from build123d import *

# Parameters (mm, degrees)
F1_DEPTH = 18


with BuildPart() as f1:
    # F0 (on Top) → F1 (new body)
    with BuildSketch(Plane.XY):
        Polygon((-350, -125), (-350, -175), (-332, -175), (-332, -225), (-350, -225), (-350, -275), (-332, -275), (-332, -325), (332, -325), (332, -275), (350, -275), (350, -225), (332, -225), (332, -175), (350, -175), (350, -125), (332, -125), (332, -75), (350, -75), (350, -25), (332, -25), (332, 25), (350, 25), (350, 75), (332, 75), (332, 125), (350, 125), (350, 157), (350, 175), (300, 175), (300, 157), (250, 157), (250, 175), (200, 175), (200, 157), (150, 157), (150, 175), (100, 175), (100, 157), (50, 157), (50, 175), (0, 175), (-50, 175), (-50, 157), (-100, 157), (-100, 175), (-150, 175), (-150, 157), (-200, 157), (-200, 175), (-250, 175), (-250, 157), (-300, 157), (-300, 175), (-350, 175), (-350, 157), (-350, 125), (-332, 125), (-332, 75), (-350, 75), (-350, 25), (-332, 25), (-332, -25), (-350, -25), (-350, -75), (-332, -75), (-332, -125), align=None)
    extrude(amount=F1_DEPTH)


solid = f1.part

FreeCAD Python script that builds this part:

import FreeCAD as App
import Part
import Sketcher
from FreeCAD import Vector
Q = App.Units.Quantity

doc = App.newDocument("Part")
params = doc.addObject("Spreadsheet::Sheet", "Params")
for row, (alias, value) in enumerate([
    ("sketch1_width", "18 mm"),
    ("sketch1_width2", "664 mm"),
    ("sketch1_width3", "50 mm"),
    ("pad1_length", "18 mm"),
], start=1):
    params.set(f"A{row}", alias)
    params.set(f"B{row}", "=" + value)
    params.setAlias(f"B{row}", alias)

body = doc.addObject("PartDesign::Body", "Body")

# Sketch on XY plane
sketch1 = body.newObject("Sketcher::SketchObject", "Sketch")
sketch1.AttachmentSupport = (doc.getObject("XY_Plane"), [""])
sketch1.MapMode = "FlatFace"
sketch1.addGeometry([
    Part.LineSegment(Vector(-350, -125, 0), Vector(-350, -175, 0)),  # 0
    Part.LineSegment(Vector(-350, -175, 0), Vector(-332, -175, 0)),  # 1
    Part.LineSegment(Vector(-332, -175, 0), Vector(-332, -225, 0)),  # 2
    Part.LineSegment(Vector(-332, -225, 0), Vector(-350, -225, 0)),  # 3
    Part.LineSegment(Vector(-350, -225, 0), Vector(-350, -275, 0)),  # 4
    Part.LineSegment(Vector(-350, -275, 0), Vector(-332, -275, 0)),  # 5
    Part.LineSegment(Vector(-332, -275, 0), Vector(-332, -325, 0)),  # 6
    Part.LineSegment(Vector(-332, -325, 0), Vector(332, -325, 0)),  # 7
    Part.LineSegment(Vector(332, -325, 0), Vector(332, -275, 0)),  # 8
    Part.LineSegment(Vector(332, -275, 0), Vector(350, -275, 0)),  # 9
    Part.LineSegment(Vector(350, -275, 0), Vector(350, -225, 0)),  # 10
    Part.LineSegment(Vector(350, -225, 0), Vector(332, -225, 0)),  # 11
    Part.LineSegment(Vector(332, -225, 0), Vector(332, -175, 0)),  # 12
    Part.LineSegment(Vector(332, -175, 0), Vector(350, -175, 0)),  # 13
    Part.LineSegment(Vector(350, -175, 0), Vector(350, -125, 0)),  # 14
    Part.LineSegment(Vector(350, -125, 0), Vector(332, -125, 0)),  # 15
    Part.LineSegment(Vector(332, -125, 0), Vector(332, -75, 0)),  # 16
    Part.LineSegment(Vector(332, -75, 0), Vector(350, -75, 0)),  # 17
    Part.LineSegment(Vector(350, -75, 0), Vector(350, -25, 0)),  # 18
    Part.LineSegment(Vector(350, -25, 0), Vector(332, -25, 0)),  # 19
    Part.LineSegment(Vector(332, -25, 0), Vector(332, 25, 0)),  # 20
    Part.LineSegment(Vector(332, 25, 0), Vector(350, 25, 0)),  # 21
    Part.LineSegment(Vector(350, 25, 0), Vector(350, 75, 0)),  # 22
    Part.LineSegment(Vector(350, 75, 0), Vector(332, 75, 0)),  # 23
    Part.LineSegment(Vector(332, 75, 0), Vector(332, 125, 0)),  # 24
    Part.LineSegment(Vector(332, 125, 0), Vector(350, 125, 0)),  # 25
    Part.LineSegment(Vector(350, 125, 0), Vector(350, 175, 0)),  # 26
    Part.LineSegment(Vector(350, 175, 0), Vector(300, 175, 0)),  # 27
    Part.LineSegment(Vector(300, 175, 0), Vector(300, 157, 0)),  # 28
    Part.LineSegment(Vector(300, 157, 0), Vector(250, 157, 0)),  # 29
    Part.LineSegment(Vector(250, 157, 0), Vector(250, 175, 0)),  # 30
    Part.LineSegment(Vector(250, 175, 0), Vector(200, 175, 0)),  # 31
    Part.LineSegment(Vector(200, 175, 0), Vector(200, 157, 0)),  # 32
    Part.LineSegment(Vector(200, 157, 0), Vector(150, 157, 0)),  # 33
    Part.LineSegment(Vector(150, 157, 0), Vector(150, 175, 0)),  # 34
    Part.LineSegment(Vector(150, 175, 0), Vector(100, 175, 0)),  # 35
    Part.LineSegment(Vector(100, 175, 0), Vector(100, 157, 0)),  # 36
    Part.LineSegment(Vector(100, 157, 0), Vector(50, 157, 0)),  # 37
    Part.LineSegment(Vector(50, 157, 0), Vector(50, 175, 0)),  # 38
    Part.LineSegment(Vector(50, 175, 0), Vector(-50, 175, 0)),  # 39
    Part.LineSegment(Vector(-50, 175, 0), Vector(-50, 157, 0)),  # 40
    Part.LineSegment(Vector(-50, 157, 0), Vector(-100, 157, 0)),  # 41
    Part.LineSegment(Vector(-100, 157, 0), Vector(-100, 175, 0)),  # 42
    Part.LineSegment(Vector(-100, 175, 0), Vector(-150, 175, 0)),  # 43
    Part.LineSegment(Vector(-150, 175, 0), Vector(-150, 157, 0)),  # 44
    Part.LineSegment(Vector(-150, 157, 0), Vector(-200, 157, 0)),  # 45
    Part.LineSegment(Vector(-200, 157, 0), Vector(-200, 175, 0)),  # 46
    Part.LineSegment(Vector(-200, 175, 0), Vector(-250, 175, 0)),  # 47
    Part.LineSegment(Vector(-250, 175, 0), Vector(-250, 157, 0)),  # 48
    Part.LineSegment(Vector(-250, 157, 0), Vector(-300, 157, 0)),  # 49
    Part.LineSegment(Vector(-300, 157, 0), Vector(-300, 175, 0)),  # 50
    Part.LineSegment(Vector(-300, 175, 0), Vector(-350, 175, 0)),  # 51
    Part.LineSegment(Vector(-350, 175, 0), Vector(-350, 125, 0)),  # 52
    Part.LineSegment(Vector(-350, 125, 0), Vector(-332, 125, 0)),  # 53
    Part.LineSegment(Vector(-332, 125, 0), Vector(-332, 75, 0)),  # 54
    Part.LineSegment(Vector(-332, 75, 0), Vector(-350, 75, 0)),  # 55
    Part.LineSegment(Vector(-350, 75, 0), Vector(-350, 25, 0)),  # 56
    Part.LineSegment(Vector(-350, 25, 0), Vector(-332, 25, 0)),  # 57
    Part.LineSegment(Vector(-332, 25, 0), Vector(-332, -25, 0)),  # 58
    Part.LineSegment(Vector(-332, -25, 0), Vector(-350, -25, 0)),  # 59
    Part.LineSegment(Vector(-350, -25, 0), Vector(-350, -75, 0)),  # 60
    Part.LineSegment(Vector(-350, -75, 0), Vector(-332, -75, 0)),  # 61
    Part.LineSegment(Vector(-332, -75, 0), Vector(-332, -125, 0)),  # 62
    Part.LineSegment(Vector(-332, -125, 0), Vector(-350, -125, 0)),  # 63
], False)
sketch1.addConstraint([
    Sketcher.Constraint("Coincident", 0, 2, 1, 1),
    Sketcher.Constraint("Coincident", 1, 2, 2, 1),
    Sketcher.Constraint("Coincident", 2, 2, 3, 1),
    Sketcher.Constraint("Coincident", 3, 2, 4, 1),
    Sketcher.Constraint("Coincident", 4, 2, 5, 1),
    Sketcher.Constraint("Coincident", 5, 2, 6, 1),
    Sketcher.Constraint("Coincident", 6, 2, 7, 1),
    Sketcher.Constraint("Coincident", 7, 2, 8, 1),
    Sketcher.Constraint("Coincident", 8, 2, 9, 1),
    Sketcher.Constraint("Coincident", 9, 2, 10, 1),
    Sketcher.Constraint("Coincident", 10, 2, 11, 1),
    Sketcher.Constraint("Coincident", 11, 2, 12, 1),
    Sketcher.Constraint("Coincident", 12, 2, 13, 1),
    Sketcher.Constraint("Coincident", 13, 2, 14, 1),
    Sketcher.Constraint("Coincident", 14, 2, 15, 1),
    Sketcher.Constraint("Coincident", 15, 2, 16, 1),
    Sketcher.Constraint("Coincident", 16, 2, 17, 1),
    Sketcher.Constraint("Coincident", 17, 2, 18, 1),
    Sketcher.Constraint("Coincident", 18, 2, 19, 1),
    Sketcher.Constraint("Coincident", 19, 2, 20, 1),
    Sketcher.Constraint("Coincident", 20, 2, 21, 1),
    Sketcher.Constraint("Coincident", 21, 2, 22, 1),
    Sketcher.Constraint("Coincident", 22, 2, 23, 1),
    Sketcher.Constraint("Coincident", 23, 2, 24, 1),
    Sketcher.Constraint("Coincident", 24, 2, 25, 1),
    Sketcher.Constraint("Coincident", 25, 2, 26, 1),
    Sketcher.Constraint("Coincident", 26, 2, 27, 1),
    Sketcher.Constraint("Coincident", 27, 2, 28, 1),
    Sketcher.Constraint("Coincident", 28, 2, 29, 1),
    Sketcher.Constraint("Coincident", 29, 2, 30, 1),
    Sketcher.Constraint("Coincident", 30, 2, 31, 1),
    Sketcher.Constraint("Coincident", 31, 2, 32, 1),
    Sketcher.Constraint("Coincident", 32, 2, 33, 1),
    Sketcher.Constraint("Coincident", 33, 2, 34, 1),
    Sketcher.Constraint("Coincident", 34, 2, 35, 1),
    Sketcher.Constraint("Coincident", 35, 2, 36, 1),
    Sketcher.Constraint("Coincident", 36, 2, 37, 1),
    Sketcher.Constraint("Coincident", 37, 2, 38, 1),
    Sketcher.Constraint("Coincident", 38, 2, 39, 1),
    Sketcher.Constraint("Coincident", 39, 2, 40, 1),
    Sketcher.Constraint("Coincident", 40, 2, 41, 1),
    Sketcher.Constraint("Coincident", 41, 2, 42, 1),
    Sketcher.Constraint("Coincident", 42, 2, 43, 1),
    Sketcher.Constraint("Coincident", 43, 2, 44, 1),
    Sketcher.Constraint("Coincident", 44, 2, 45, 1),
    Sketcher.Constraint("Coincident", 45, 2, 46, 1),
    Sketcher.Constraint("Coincident", 46, 2, 47, 1),
    Sketcher.Constraint("Coincident", 47, 2, 48, 1),
    Sketcher.Constraint("Coincident", 48, 2, 49, 1),
    Sketcher.Constraint("Coincident", 49, 2, 50, 1),
    Sketcher.Constraint("Coincident", 50, 2, 51, 1),
    Sketcher.Constraint("Coincident", 51, 2, 52, 1),
    Sketcher.Constraint("Coincident", 52, 2, 53, 1),
    Sketcher.Constraint("Coincident", 53, 2, 54, 1),
    Sketcher.Constraint("Coincident", 54, 2, 55, 1),
    Sketcher.Constraint("Coincident", 55, 2, 56, 1),
    Sketcher.Constraint("Coincident", 56, 2, 57, 1),
    Sketcher.Constraint("Coincident", 57, 2, 58, 1),
    Sketcher.Constraint("Coincident", 58, 2, 59, 1),
    Sketcher.Constraint("Coincident", 59, 2, 60, 1),
    Sketcher.Constraint("Coincident", 60, 2, 61, 1),
    Sketcher.Constraint("Coincident", 61, 2, 62, 1),
    Sketcher.Constraint("Coincident", 62, 2, 63, 1),
    Sketcher.Constraint("Coincident", 63, 2, 0, 1),
    Sketcher.Constraint("Vertical", 0),
    Sketcher.Constraint("Horizontal", 1),
    Sketcher.Constraint("Vertical", 2),
    Sketcher.Constraint("Horizontal", 3),
    Sketcher.Constraint("Vertical", 4),
    Sketcher.Constraint("Horizontal", 5),
    Sketcher.Constraint("Vertical", 6),
    Sketcher.Constraint("Horizontal", 7),
    Sketcher.Constraint("Vertical", 8),
    Sketcher.Constraint("Horizontal", 9),
    Sketcher.Constraint("Vertical", 10),
    Sketcher.Constraint("Horizontal", 11),
    Sketcher.Constraint("Vertical", 12),
    Sketcher.Constraint("Horizontal", 13),
    Sketcher.Constraint("Vertical", 14),
    Sketcher.Constraint("Horizontal", 15),
    Sketcher.Constraint("Vertical", 16),
    Sketcher.Constraint("Horizontal", 17),
    Sketcher.Constraint("Vertical", 18),
    Sketcher.Constraint("Horizontal", 19),
    Sketcher.Constraint("Vertical", 20),
    Sketcher.Constraint("Horizontal", 21),
    Sketcher.Constraint("Vertical", 22),
    Sketcher.Constraint("Horizontal", 23),
    Sketcher.Constraint("Vertical", 24),
    Sketcher.Constraint("Horizontal", 25),
    Sketcher.Constraint("Vertical", 26),
    Sketcher.Constraint("Horizontal", 27),
    Sketcher.Constraint("Vertical", 28),
    Sketcher.Constraint("Horizontal", 29),
    Sketcher.Constraint("Vertical", 30),
    Sketcher.Constraint("Horizontal", 31),
    Sketcher.Constraint("Vertical", 32),
    Sketcher.Constraint("Horizontal", 33),
    Sketcher.Constraint("Vertical", 34),
    Sketcher.Constraint("Horizontal", 35),
    Sketcher.Constraint("Vertical", 36),
    Sketcher.Constraint("Horizontal", 37),
    Sketcher.Constraint("Vertical", 38),
    Sketcher.Constraint("Horizontal", 39),
    Sketcher.Constraint("Vertical", 40),
    Sketcher.Constraint("Horizontal", 41),
    Sketcher.Constraint("Vertical", 42),
    Sketcher.Constraint("Horizontal", 43),
    Sketcher.Constraint("Vertical", 44),
    Sketcher.Constraint("Horizontal", 45),
    Sketcher.Constraint("Vertical", 46),
    Sketcher.Constraint("Horizontal", 47),
    Sketcher.Constraint("Vertical", 48),
    Sketcher.Constraint("Horizontal", 49),
    Sketcher.Constraint("Vertical", 50),
    Sketcher.Constraint("Horizontal", 51),
    Sketcher.Constraint("Vertical", 52),
    Sketcher.Constraint("Horizontal", 53),
    Sketcher.Constraint("Vertical", 54),
    Sketcher.Constraint("Horizontal", 55),
    Sketcher.Constraint("Vertical", 56),
    Sketcher.Constraint("Horizontal", 57),
    Sketcher.Constraint("Vertical", 58),
    Sketcher.Constraint("Horizontal", 59),
    Sketcher.Constraint("Vertical", 60),
    Sketcher.Constraint("Horizontal", 61),
    Sketcher.Constraint("Vertical", 62),
    Sketcher.Constraint("Horizontal", 63),
    Sketcher.Constraint("Symmetric", 0, 2, 26, 2, -1, 1),
    Sketcher.Constraint("Symmetric", 13, 2, 51, 2, -1, 1),
    Sketcher.Constraint("Symmetric", 15, 2, 53, 2, -1, 1),
    Sketcher.Constraint("Symmetric", 17, 2, 55, 2, -1, 1),
    Sketcher.Constraint("Symmetric", 19, 2, 57, 2, -1, 1),
    Sketcher.Constraint("Symmetric", 21, 2, 59, 2, -1, 1),
    Sketcher.Constraint("Symmetric", 23, 2, 61, 2, -1, 1),
    Sketcher.Constraint("Symmetric", 5, 2, 8, 2, -2),
    Sketcher.Constraint("Symmetric", 3, 2, 10, 2, -2),
    Sketcher.Constraint("Symmetric", 1, 2, 12, 2, -2),
    Sketcher.Constraint("Symmetric", 37, 2, 40, 2, -2),
    Sketcher.Constraint("Symmetric", 35, 2, 42, 2, -2),
    Sketcher.Constraint("Symmetric", 33, 2, 44, 2, -2),
    Sketcher.Constraint("Symmetric", 31, 2, 46, 2, -2),
    Sketcher.Constraint("Symmetric", 29, 2, 48, 2, -2),
    Sketcher.Constraint("Symmetric", 25, 2, 52, 2, -2),
    Sketcher.Constraint("Symmetric", 23, 2, 54, 2, -2),
    Sketcher.Constraint("Symmetric", 21, 2, 56, 2, -2),
    Sketcher.Constraint("Horizontal", 27, 2, 30, 2),
    Sketcher.Constraint("Horizontal", 29, 2, 32, 2),
    Sketcher.Constraint("Horizontal", 31, 2, 34, 2),
    Sketcher.Constraint("Horizontal", 33, 2, 36, 2),
    Sketcher.Constraint("Horizontal", 35, 2, 38, 2),
    Sketcher.Constraint("Horizontal", 15, 2, 62, 2),
    Sketcher.Constraint("Vertical", 0, 2, 3, 2),
    Sketcher.Constraint("Vertical", 2, 2, 5, 2),
    Sketcher.Constraint("Vertical", 12, 2, 15, 2),
    Sketcher.Constraint("Vertical", 14, 2, 17, 2),
    Sketcher.Constraint("Vertical", 16, 2, 19, 2),
    Sketcher.Constraint("Equal", 27, 29),
    Sketcher.Constraint("Equal", 29, 31),
    Sketcher.Constraint("Equal", 31, 33),
    Sketcher.Constraint("Equal", 33, 35),
    Sketcher.Constraint("Equal", 35, 37),
    Sketcher.Constraint("Equal", 47, 49),
    Sketcher.Constraint("Equal", 51, 0),
    Sketcher.Constraint("Equal", 0, 2),
    Sketcher.Constraint("Equal", 2, 4),
    Sketcher.Constraint("Equal", 4, 6),
    Sketcher.Constraint("Equal", 14, 16),
    Sketcher.Constraint("Equal", 16, 18),
    Sketcher.Constraint("Equal", 18, 20),
    Sketcher.Constraint("Equal", 63, 28),
    Sketcher.Constraint("DistanceX", 1, 1, 1, 2, Q("18 mm")),
    Sketcher.Constraint("DistanceX", 7, 1, 7, 2, Q("664 mm")),
    Sketcher.Constraint("DistanceX", 27, 2, 27, 1, Q("50 mm")),
])
sketch1.setExpression("Constraints[171]", "Params.sketch1_width")
sketch1.setExpression("Constraints[172]", "Params.sketch1_width2")
sketch1.setExpression("Constraints[173]", "Params.sketch1_width3")
pad1 = body.newObject("PartDesign::Pad", "Pad")
pad1.Profile = sketch1
pad1.setExpression("Length", "Params.pad1_length")

doc.recompute()
